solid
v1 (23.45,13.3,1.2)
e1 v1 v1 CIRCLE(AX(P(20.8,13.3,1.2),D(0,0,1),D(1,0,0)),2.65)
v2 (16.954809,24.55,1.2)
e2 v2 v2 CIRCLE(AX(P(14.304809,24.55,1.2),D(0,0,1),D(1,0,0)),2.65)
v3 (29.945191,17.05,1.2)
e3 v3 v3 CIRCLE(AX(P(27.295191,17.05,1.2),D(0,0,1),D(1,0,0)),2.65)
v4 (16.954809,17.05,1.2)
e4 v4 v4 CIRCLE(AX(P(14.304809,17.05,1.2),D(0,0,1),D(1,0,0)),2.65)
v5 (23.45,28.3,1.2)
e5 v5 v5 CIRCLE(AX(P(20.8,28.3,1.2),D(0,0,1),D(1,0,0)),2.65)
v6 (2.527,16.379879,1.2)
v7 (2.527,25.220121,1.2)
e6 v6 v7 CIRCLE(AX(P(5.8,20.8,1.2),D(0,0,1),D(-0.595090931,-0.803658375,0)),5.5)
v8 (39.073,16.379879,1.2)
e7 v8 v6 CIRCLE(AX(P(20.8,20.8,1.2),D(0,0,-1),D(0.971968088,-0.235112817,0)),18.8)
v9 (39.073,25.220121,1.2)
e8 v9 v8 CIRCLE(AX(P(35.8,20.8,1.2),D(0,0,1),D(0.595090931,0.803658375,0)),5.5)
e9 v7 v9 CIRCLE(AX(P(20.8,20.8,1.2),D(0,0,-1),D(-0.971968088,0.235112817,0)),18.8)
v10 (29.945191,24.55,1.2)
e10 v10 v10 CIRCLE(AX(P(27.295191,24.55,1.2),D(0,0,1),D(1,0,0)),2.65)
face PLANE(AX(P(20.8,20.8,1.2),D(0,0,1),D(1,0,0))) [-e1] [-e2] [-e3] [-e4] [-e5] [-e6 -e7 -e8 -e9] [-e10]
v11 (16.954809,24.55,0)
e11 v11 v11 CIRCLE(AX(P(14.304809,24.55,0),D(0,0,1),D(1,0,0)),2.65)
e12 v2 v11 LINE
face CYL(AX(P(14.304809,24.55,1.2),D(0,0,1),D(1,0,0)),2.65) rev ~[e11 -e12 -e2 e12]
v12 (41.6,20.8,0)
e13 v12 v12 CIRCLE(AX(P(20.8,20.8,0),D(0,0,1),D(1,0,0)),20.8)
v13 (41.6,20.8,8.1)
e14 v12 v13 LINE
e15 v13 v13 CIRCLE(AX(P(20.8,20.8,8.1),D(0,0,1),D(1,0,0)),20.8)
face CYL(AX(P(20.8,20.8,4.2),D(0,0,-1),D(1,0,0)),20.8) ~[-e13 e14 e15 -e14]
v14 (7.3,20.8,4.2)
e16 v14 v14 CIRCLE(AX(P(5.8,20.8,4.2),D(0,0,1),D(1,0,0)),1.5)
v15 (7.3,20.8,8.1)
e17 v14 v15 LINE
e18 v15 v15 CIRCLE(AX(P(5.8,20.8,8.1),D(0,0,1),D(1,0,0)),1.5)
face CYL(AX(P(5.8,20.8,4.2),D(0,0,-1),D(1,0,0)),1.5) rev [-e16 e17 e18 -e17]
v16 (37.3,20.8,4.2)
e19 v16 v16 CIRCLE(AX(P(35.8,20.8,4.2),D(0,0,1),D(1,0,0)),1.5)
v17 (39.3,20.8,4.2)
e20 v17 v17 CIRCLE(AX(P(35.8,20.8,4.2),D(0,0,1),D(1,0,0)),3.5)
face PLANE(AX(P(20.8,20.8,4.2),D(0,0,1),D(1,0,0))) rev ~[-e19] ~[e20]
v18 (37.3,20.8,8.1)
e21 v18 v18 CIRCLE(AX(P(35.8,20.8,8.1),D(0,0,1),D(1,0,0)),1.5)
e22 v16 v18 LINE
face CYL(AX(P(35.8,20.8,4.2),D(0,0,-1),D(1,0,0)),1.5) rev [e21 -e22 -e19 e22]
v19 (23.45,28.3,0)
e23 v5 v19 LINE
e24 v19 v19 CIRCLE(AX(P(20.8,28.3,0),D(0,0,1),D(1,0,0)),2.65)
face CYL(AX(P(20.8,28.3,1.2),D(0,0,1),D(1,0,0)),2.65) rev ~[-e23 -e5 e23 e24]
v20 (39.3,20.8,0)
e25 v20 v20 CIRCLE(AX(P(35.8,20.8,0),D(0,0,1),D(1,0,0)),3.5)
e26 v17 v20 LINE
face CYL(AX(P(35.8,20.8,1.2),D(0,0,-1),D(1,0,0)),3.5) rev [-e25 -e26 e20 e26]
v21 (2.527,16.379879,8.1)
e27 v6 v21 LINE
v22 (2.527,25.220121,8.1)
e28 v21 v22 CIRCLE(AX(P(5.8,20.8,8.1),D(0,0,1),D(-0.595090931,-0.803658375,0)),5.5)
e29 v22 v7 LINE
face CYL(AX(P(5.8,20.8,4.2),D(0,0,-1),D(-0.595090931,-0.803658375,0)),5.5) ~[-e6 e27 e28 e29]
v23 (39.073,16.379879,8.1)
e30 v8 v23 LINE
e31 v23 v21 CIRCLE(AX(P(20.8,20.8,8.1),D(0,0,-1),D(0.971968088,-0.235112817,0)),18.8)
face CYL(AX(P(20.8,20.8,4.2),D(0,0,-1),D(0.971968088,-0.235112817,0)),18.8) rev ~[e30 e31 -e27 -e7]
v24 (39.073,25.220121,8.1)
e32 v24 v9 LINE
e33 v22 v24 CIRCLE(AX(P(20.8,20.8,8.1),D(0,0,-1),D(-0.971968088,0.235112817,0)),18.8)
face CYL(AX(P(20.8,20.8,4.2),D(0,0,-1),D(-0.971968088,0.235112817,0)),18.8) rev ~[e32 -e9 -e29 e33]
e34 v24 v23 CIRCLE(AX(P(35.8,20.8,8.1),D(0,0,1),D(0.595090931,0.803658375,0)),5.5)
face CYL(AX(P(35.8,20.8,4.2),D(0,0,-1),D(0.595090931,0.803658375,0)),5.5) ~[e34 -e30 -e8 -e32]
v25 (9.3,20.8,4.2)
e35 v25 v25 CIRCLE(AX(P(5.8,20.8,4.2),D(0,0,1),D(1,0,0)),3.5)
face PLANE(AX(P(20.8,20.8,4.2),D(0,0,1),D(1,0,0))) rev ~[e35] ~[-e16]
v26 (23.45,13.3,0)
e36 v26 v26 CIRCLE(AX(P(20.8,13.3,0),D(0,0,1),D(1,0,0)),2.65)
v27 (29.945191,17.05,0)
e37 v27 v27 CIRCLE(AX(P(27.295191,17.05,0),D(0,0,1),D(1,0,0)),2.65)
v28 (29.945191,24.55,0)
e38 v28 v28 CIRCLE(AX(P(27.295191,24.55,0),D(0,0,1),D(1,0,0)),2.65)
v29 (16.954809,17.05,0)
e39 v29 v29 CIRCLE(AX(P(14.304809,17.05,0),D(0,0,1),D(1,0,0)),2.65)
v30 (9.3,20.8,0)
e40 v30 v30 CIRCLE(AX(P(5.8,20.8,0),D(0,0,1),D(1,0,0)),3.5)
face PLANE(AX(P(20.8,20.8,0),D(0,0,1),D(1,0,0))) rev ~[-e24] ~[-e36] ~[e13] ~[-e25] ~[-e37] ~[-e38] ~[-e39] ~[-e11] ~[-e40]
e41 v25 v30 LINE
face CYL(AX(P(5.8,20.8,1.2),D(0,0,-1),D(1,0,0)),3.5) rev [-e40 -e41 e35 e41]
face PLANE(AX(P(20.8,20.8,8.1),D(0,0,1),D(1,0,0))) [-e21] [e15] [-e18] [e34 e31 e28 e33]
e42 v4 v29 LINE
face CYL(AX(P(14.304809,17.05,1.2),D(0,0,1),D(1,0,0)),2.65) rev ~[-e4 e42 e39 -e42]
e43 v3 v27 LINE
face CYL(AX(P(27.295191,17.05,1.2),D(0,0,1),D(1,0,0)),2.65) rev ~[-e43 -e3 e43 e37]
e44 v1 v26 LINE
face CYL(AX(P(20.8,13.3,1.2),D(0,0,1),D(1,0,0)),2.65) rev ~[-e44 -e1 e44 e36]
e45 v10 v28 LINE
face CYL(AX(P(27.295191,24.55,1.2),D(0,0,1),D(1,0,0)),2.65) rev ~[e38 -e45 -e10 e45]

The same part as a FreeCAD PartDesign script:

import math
import FreeCAD as App
import Part
import Sketcher
from FreeCAD import Vector

doc = App.newDocument("Part")
params = doc.addObject("Spreadsheet::Sheet", "Params")
for row, (alias, value) in enumerate([
    ("sketch1_diameter", "7 mm"),
    ("sketch1_diameter2", "41.6 mm"),
    ("pad1_length", "1.2 mm"),
    ("sketch2_diameter", "7 mm"),
    ("sketch2_diameter2", "41.6 mm"),
    ("sketch2_radius", "5.5 mm"),
    ("sketch2_radius2", "18.8 mm"),
    ("pad2_length", "3 mm"),
    ("sketch3_diameter", "3 mm"),
    ("sketch3_diameter2", "41.6 mm"),
    ("sketch3_radius", "5.5 mm"),
    ("sketch3_radius2", "18.8 mm"),
    ("pad3_length", "3.9 mm"),
    ("sketch4_diameter", "5.3 mm"),
], start=1):
    params.set(f"A{row}", alias)
    params.set(f"B{row}", "=" + value)
    params.setAlias(f"B{row}", alias)

body = doc.addObject("PartDesign::Body", "Body")

# Sketch on XY plane
sketch1 = body.newObject("Sketcher::SketchObject", "Sketch")
sketch1.AttachmentSupport = (doc.getObject("XY_Plane"), [""])
sketch1.MapMode = "FlatFace"
sketch1.addGeometry([
    Part.Circle(Vector(20.8, 20.8, 0), Vector(0, 0, 1), 20.8),
    Part.Circle(Vector(5.8, 20.8, 0), Vector(0, 0, 1), 3.5),
    Part.Circle(Vector(35.8, 20.8, 0), Vector(0, 0, 1), 3.5),
], False)
sketch1.addConstraint([
    Sketcher.Constraint("Equal", 1, 2),
    Sketcher.Constraint("Horizontal", 0, 3, 1, 3),
    Sketcher.Constraint("Horizontal", 1, 3, 2, 3),
    Sketcher.Constraint("Diameter", 1, 7.0),
    Sketcher.Constraint("Diameter", 0, 41.6),
    Sketcher.Constraint("DistanceX", 1, 3, 0, 3, 15.0),
    Sketcher.Constraint("DistanceX", 0, 3, 2, 3, 15.0),
    Sketcher.Constraint("DistanceX", -1, 1, 0, 3, 20.8),
    Sketcher.Constraint("DistanceY", -1, 1, 0, 3, 20.8),
])
sketch1.setExpression("Constraints[3]", "Params.sketch1_diameter")
sketch1.setExpression("Constraints[4]", "Params.sketch1_diameter2")
pad1 = body.newObject("PartDesign::Pad", "Pad")
pad1.Profile = sketch1
pad1.setExpression("Length", "Params.pad1_length")

# Sketch on XY plane
sketch2 = body.newObject("Sketcher::SketchObject", "Sketch001")
sketch2.AttachmentSupport = (doc.getObject("XY_Plane"), [""])
sketch2.MapMode = "FlatFace"
sketch2.AttachmentOffset = App.Placement(Vector(0, 0, 1.2), App.Rotation())
sketch2.addGeometry([
    Part.Circle(Vector(20.8, 20.8, 0), Vector(0, 0, 1), 20.8),  # 0
    Part.Circle(Vector(5.8, 20.8, 0), Vector(0, 0, 1), 3.5),  # 1
    Part.ArcOfCircle(Part.Circle(Vector(35.8, 20.8, 0), Vector(0, 0, 1), 5.5), math.radians(53), math.radians(307)),  # 2
    Part.ArcOfCircle(Part.Circle(Vector(20.8, 20.8, 0), Vector(0, 0, 1), 18.8), math.radians(-166), math.radians(-14)),  # 3
    Part.ArcOfCircle(Part.Circle(Vector(5.8, 20.8, 0), Vector(0, 0, 1), 5.5), math.radians(-127), math.radians(127)),  # 4
    Part.ArcOfCircle(Part.Circle(Vector(20.8, 20.8, 0), Vector(0, 0, 1), 18.8), math.radians(14), math.radians(166)),  # 5
    Part.Circle(Vector(35.8, 20.8, 0), Vector(0, 0, 1), 3.5),  # 6
], False)
sketch2.addConstraint([
    Sketcher.Constraint("Coincident", 2, 2, 3, 2),
    Sketcher.Constraint("Coincident", 3, 1, 4, 1),
    Sketcher.Constraint("Coincident", 4, 2, 5, 2),
    Sketcher.Constraint("Coincident", 5, 1, 2, 1),
    Sketcher.Constraint("Coincident", 3, 3, 0, 3),
    Sketcher.Constraint("Coincident", 4, 3, 1, 3),
    Sketcher.Constraint("Coincident", 5, 3, 0, 3),
    Sketcher.Constraint("Coincident", 6, 3, 2, 3),
    Sketcher.Constraint("Equal", 2, 4),
    Sketcher.Constraint("Equal", 3, 5),
    Sketcher.Constraint("Equal", 1, 6),
    Sketcher.Constraint("Horizontal", 0, 3, 1, 3),
    Sketcher.Constraint("Horizontal", 1, 3, 2, 3),
    Sketcher.Constraint("Horizontal", 2, 2, 3, 1),
    Sketcher.Constraint("Diameter", 1, 7.0),
    Sketcher.Constraint("Diameter", 0, 41.6),
    Sketcher.Constraint("Radius", 2, 5.5),
    Sketcher.Constraint("Radius", 3, 18.8),
    Sketcher.Constraint("DistanceX", 1, 3, 0, 3, 15.0),
    Sketcher.Constraint("DistanceX", -1, 1, 0, 3, 20.8),
    Sketcher.Constraint("DistanceY", -1, 1, 0, 3, 20.8),
])
sketch2.setExpression("Constraints[14]", "Params.sketch2_diameter")
sketch2.setExpression("Constraints[15]", "Params.sketch2_diameter2")
sketch2.setExpression("Constraints[16]", "Params.sketch2_radius")
sketch2.setExpression("Constraints[17]", "Params.sketch2_radius2")
pad2 = body.newObject("PartDesign::Pad", "Pad001")
pad2.Profile = sketch2
pad2.setExpression("Length", "Params.pad2_length")

# Sketch on XY plane
sketch3 = body.newObject("Sketcher::SketchObject", "Sketch002")
sketch3.AttachmentSupport = (doc.getObject("XY_Plane"), [""])
sketch3.MapMode = "FlatFace"
sketch3.AttachmentOffset = App.Placement(Vector(0, 0, 4.2), App.Rotation())
sketch3.addGeometry([
    Part.Circle(Vector(20.8, 20.8, 0), Vector(0, 0, 1), 20.8),  # 0
    Part.Circle(Vector(5.8, 20.8, 0), Vector(0, 0, 1), 1.5),  # 1
    Part.ArcOfCircle(Part.Circle(Vector(35.8, 20.8, 0), Vector(0, 0, 1), 5.5), math.radians(53), math.radians(307)),  # 2
    Part.ArcOfCircle(Part.Circle(Vector(20.8, 20.8, 0), Vector(0, 0, 1), 18.8), math.radians(-166), math.radians(-14)),  # 3
    Part.ArcOfCircle(Part.Circle(Vector(5.8, 20.8, 0), Vector(0, 0, 1), 5.5), math.radians(-127), math.radians(127)),  # 4
    Part.ArcOfCircle(Part.Circle(Vector(20.8, 20.8, 0), Vector(0, 0, 1), 18.8), math.radians(14), math.radians(166)),  # 5
    Part.Circle(Vector(35.8, 20.8, 0), Vector(0, 0, 1), 1.5),  # 6
], False)
sketch3.addConstraint([
    Sketcher.Constraint("Coincident", 2, 2, 3, 2),
    Sketcher.Constraint("Coincident", 3, 1, 4, 1),
    Sketcher.Constraint("Coincident", 4, 2, 5, 2),
    Sketcher.Constraint("Coincident", 5, 1, 2, 1),
    Sketcher.Constraint("Coincident", 3, 3, 0, 3),
    Sketcher.Constraint("Coincident", 4, 3, 1, 3),
    Sketcher.Constraint("Coincident", 5, 3, 0, 3),
    Sketcher.Constraint("Coincident", 6, 3, 2, 3),
    Sketcher.Constraint("Equal", 2, 4),
    Sketcher.Constraint("Equal", 3, 5),
    Sketcher.Constraint("Equal", 1, 6),
    Sketcher.Constraint("Horizontal", 0, 3, 1, 3),
    Sketcher.Constraint("Horizontal", 1, 3, 2, 3),
    Sketcher.Constraint("Horizontal", 2, 2, 3, 1),
    Sketcher.Constraint("Diameter", 1, 3.0),
    Sketcher.Constraint("Diameter", 0, 41.6),
    Sketcher.Constraint("Radius", 2, 5.5),
    Sketcher.Constraint("Radius", 3, 18.8),
    Sketcher.Constraint("DistanceX", 1, 3, 0, 3, 15.0),
    Sketcher.Constraint("DistanceX", -1, 1, 0, 3, 20.8),
    Sketcher.Constraint("DistanceY", -1, 1, 0, 3, 20.8),
])
sketch3.setExpression("Constraints[14]", "Params.sketch3_diameter")
sketch3.setExpression("Constraints[15]", "Params.sketch3_diameter2")
sketch3.setExpression("Constraints[16]", "Params.sketch3_radius")
sketch3.setExpression("Constraints[17]", "Params.sketch3_radius2")
pad3 = body.newObject("PartDesign::Pad", "Pad002")
pad3.Profile = sketch3
pad3.setExpression("Length", "Params.pad3_length")

# Sketch on XY plane
sketch4 = body.newObject("Sketcher::SketchObject", "Sketch003")
sketch4.AttachmentSupport = (doc.getObject("XY_Plane"), [""])
sketch4.MapMode = "FlatFace"
sketch4.AttachmentOffset = App.Placement(Vector(0, 0, 1.2), App.Rotation())
sketch4.addGeometry([
    Part.Circle(Vector(14.3, 24.6, 0), Vector(0, 0, 1), 2.6),  # 0
    Part.Circle(Vector(20.8, 28.3, 0), Vector(0, 0, 1), 2.6),  # 1
    Part.Circle(Vector(27.3, 24.6, 0), Vector(0, 0, 1), 2.6),  # 2
    Part.Circle(Vector(27.3, 17.1, 0), Vector(0, 0, 1), 2.6),  # 3
    Part.Circle(Vector(20.8, 13.3, 0), Vector(0, 0, 1), 2.6),  # 4
    Part.Circle(Vector(14.3, 17.1, 0), Vector(0, 0, 1), 2.6),  # 5
], False)
sketch4.addConstraint([
    Sketcher.Constraint("Equal", 0, 1),
    Sketcher.Constraint("Equal", 1, 2),
    Sketcher.Constraint("Equal", 2, 3),
    Sketcher.Constraint("Equal", 3, 4),
    Sketcher.Constraint("Equal", 4, 5),
    Sketcher.Constraint("Horizontal", 0, 3, 2, 3),
    Sketcher.Constraint("Horizontal", 3, 3, 5, 3),
    Sketcher.Constraint("Vertical", 2, 3, 3, 3),
    Sketcher.Constraint("Vertical", 1, 3, 4, 3),
    Sketcher.Constraint("Vertical", 0, 3, 5, 3),
    Sketcher.Constraint("Diameter", 0, 5.3),
    Sketcher.Constraint("DistanceY", 4, 3, 1, 3, 15.0),
    Sketcher.Constraint("DistanceX", -1, 1, 1, 3, 20.8),
    Sketcher.Constraint("DistanceY", -1, 1, 1, 3, 28.3),
    Sketcher.Constraint("DistanceY", 3, 3, 2, 3, 7.5),
    Sketcher.Constraint("DistanceY", -1, 1, 0, 3, 24.55),
    Sketcher.Constraint("DistanceX", -1, 1, 0, 3, 14.304809),
    Sketcher.Constraint("DistanceX", -1, 1, 2, 3, 27.295191),
])
sketch4.setExpression("Constraints[10]", "Params.sketch4_diameter")
pocket1 = body.newObject("PartDesign::Pocket", "Pocket")
pocket1.Profile = sketch4
pocket1.Type = "ThroughAll"

doc.recompute()
